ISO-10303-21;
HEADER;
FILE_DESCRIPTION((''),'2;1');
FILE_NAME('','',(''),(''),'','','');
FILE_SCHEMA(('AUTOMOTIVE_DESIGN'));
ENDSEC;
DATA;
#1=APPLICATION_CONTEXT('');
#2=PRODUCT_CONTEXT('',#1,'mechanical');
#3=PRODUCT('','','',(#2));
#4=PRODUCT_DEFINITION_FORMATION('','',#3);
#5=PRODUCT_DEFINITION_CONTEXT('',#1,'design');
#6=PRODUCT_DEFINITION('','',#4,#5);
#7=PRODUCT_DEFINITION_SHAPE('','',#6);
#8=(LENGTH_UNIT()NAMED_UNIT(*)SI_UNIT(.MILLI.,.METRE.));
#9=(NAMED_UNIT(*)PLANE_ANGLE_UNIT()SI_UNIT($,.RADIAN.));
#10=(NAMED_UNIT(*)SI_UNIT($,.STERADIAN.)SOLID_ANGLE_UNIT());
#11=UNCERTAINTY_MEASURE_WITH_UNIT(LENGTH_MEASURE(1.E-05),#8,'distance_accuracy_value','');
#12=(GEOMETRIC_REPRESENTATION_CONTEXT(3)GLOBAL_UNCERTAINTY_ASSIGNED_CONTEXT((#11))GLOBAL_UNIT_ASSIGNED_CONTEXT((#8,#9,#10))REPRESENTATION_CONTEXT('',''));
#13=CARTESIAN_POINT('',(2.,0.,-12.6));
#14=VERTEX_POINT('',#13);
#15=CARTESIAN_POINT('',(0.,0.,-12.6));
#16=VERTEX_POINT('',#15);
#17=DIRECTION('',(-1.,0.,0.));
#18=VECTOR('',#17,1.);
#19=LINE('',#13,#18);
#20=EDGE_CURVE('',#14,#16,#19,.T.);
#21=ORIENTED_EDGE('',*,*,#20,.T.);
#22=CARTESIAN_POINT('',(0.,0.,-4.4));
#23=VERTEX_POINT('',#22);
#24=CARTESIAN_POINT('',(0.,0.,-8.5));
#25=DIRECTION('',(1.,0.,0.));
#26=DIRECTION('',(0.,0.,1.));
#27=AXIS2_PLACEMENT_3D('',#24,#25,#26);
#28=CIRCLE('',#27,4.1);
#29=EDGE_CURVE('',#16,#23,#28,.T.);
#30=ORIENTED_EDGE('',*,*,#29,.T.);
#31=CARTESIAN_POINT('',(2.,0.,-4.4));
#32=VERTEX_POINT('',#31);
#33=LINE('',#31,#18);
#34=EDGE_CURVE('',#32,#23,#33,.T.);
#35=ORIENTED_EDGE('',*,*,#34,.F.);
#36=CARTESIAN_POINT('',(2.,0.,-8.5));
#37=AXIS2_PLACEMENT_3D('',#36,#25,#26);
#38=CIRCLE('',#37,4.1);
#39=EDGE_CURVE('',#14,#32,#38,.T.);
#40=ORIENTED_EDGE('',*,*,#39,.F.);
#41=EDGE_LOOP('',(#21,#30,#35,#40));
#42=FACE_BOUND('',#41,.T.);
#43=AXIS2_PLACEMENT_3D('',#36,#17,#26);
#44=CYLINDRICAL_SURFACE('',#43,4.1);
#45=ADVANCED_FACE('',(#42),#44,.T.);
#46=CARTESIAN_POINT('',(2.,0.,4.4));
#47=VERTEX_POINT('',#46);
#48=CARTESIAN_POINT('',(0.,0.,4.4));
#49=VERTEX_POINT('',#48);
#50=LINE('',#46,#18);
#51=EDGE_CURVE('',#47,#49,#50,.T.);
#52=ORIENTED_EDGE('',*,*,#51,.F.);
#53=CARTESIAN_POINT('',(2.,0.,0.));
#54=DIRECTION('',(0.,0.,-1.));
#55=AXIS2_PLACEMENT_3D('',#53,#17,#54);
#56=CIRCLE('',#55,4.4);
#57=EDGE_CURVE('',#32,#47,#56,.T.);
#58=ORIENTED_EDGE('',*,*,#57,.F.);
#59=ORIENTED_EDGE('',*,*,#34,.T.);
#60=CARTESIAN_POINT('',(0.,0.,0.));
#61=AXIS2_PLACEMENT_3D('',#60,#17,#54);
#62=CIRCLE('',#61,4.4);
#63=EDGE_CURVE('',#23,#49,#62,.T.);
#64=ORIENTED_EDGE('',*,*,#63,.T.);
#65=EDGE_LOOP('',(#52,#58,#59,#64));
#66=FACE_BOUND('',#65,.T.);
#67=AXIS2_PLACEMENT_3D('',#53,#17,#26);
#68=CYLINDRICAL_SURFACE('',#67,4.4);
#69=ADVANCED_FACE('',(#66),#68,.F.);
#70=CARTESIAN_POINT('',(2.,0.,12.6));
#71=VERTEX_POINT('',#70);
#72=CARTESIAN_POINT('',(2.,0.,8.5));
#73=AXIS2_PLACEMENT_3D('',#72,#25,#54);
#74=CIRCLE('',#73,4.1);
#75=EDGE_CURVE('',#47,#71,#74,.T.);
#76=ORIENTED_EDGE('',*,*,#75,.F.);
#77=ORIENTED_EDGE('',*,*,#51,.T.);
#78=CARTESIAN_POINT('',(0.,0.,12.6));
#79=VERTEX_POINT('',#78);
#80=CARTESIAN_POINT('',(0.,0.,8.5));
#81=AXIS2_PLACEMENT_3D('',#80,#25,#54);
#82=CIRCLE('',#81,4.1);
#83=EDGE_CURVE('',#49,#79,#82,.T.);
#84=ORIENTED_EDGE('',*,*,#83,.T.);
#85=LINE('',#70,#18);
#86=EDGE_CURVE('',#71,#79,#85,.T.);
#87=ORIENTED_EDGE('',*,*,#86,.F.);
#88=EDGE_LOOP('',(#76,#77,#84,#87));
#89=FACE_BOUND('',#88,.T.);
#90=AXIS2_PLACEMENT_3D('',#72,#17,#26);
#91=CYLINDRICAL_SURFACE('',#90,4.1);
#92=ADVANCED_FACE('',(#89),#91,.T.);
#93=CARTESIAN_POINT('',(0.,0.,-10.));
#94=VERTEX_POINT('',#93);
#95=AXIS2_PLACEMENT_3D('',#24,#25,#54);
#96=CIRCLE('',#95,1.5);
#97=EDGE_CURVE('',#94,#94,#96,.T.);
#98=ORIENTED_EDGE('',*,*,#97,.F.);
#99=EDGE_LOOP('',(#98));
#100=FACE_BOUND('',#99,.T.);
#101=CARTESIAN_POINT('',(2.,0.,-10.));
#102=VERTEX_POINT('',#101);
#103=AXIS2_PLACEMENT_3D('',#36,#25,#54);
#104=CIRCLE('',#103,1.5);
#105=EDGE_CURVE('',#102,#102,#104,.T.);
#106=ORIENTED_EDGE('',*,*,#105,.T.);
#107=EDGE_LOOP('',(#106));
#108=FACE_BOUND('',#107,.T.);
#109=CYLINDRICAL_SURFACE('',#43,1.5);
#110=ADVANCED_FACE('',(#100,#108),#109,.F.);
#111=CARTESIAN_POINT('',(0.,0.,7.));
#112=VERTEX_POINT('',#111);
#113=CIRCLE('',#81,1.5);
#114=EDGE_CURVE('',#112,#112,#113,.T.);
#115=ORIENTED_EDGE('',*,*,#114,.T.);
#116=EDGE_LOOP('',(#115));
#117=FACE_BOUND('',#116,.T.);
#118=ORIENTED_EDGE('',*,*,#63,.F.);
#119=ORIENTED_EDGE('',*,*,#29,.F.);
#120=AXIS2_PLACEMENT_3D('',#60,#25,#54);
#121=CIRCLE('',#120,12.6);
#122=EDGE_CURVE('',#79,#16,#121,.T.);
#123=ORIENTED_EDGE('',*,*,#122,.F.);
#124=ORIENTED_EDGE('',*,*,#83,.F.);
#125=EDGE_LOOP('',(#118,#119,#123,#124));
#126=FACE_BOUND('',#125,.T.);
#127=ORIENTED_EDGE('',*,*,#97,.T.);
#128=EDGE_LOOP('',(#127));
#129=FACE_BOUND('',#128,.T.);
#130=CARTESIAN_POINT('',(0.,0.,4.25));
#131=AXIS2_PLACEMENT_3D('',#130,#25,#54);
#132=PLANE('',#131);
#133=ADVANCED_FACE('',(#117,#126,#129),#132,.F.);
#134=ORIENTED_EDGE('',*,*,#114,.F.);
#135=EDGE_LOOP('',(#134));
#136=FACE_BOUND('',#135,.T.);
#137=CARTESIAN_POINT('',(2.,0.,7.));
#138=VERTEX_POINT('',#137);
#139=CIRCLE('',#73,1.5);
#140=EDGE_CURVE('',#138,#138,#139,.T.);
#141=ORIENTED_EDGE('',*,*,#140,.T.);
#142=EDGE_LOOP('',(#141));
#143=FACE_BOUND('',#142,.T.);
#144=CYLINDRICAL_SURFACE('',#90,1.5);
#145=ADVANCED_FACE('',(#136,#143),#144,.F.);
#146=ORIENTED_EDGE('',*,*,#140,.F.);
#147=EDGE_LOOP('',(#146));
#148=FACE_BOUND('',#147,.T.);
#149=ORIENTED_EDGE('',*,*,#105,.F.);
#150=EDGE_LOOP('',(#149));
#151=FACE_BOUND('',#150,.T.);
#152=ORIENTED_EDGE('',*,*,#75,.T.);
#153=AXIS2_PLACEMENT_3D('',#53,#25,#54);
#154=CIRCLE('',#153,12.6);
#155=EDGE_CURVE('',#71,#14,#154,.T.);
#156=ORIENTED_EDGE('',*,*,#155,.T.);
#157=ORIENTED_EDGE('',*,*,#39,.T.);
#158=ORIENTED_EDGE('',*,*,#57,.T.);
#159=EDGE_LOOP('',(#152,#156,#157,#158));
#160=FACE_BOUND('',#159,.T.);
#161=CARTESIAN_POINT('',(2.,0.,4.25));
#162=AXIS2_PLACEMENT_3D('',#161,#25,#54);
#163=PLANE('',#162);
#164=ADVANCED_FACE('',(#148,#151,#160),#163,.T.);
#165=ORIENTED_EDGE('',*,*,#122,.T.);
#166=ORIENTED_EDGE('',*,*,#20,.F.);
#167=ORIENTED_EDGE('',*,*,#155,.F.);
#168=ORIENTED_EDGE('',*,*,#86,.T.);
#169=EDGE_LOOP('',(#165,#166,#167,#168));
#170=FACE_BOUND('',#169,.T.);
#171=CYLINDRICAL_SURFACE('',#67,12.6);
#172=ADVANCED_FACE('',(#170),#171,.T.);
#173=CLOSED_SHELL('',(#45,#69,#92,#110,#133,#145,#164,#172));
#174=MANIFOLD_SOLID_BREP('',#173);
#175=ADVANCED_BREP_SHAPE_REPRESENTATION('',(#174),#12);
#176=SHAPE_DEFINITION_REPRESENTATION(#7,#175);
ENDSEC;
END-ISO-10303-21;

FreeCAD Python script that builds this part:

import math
import FreeCAD as App
import Part
import Sketcher

V = App.Vector
Q = App.Units.Quantity

doc = App.newDocument("Part")
body = doc.addObject("PartDesign::Body", "Body")

# Sketch on YZ plane
sketch1 = doc.addObject("Sketcher::SketchObject", "Sketch")
body.addObject(sketch1)
sketch1.AttachmentSupport = (doc.YZ_Plane, [""])
sketch1.MapMode = "FlatFace"
sketch1.addGeometry([
    Part.ArcOfCircle(Part.Circle(V(0, 0, 0), V(0, 0, 1), 4.4), math.radians(90), math.radians(270)),  # 0
    Part.ArcOfCircle(Part.Circle(V(0, 8.5, 0), V(0, 0, 1), 4.1), math.radians(-90), math.radians(90)),  # 1
    Part.ArcOfCircle(Part.Circle(V(0, 0, 0), V(0, 0, 1), 12.6), math.radians(90), math.radians(270)),  # 2
    Part.ArcOfCircle(Part.Circle(V(0, -8.5, 0), V(0, 0, 1), 4.1), math.radians(-90), math.radians(90)),  # 3
    Part.Circle(V(0, -8.5, 0), V(0, 0, 1), 1.5),  # 4
    Part.Circle(V(0, 8.5, 0), V(0, 0, 1), 1.5),  # 5
], False)
sketch1.addConstraint([
    Sketcher.Constraint("Tangent", 0, 1, 1, 1),
    Sketcher.Constraint("Tangent", 1, 2, 2, 1),
    Sketcher.Constraint("Tangent", 2, 2, 3, 1),
    Sketcher.Constraint("Tangent", 3, 2, 0, 2),
    Sketcher.Constraint("Coincident", 0, 3, -1, 1),
    Sketcher.Constraint("Coincident", 2, 3, -1, 1),
    Sketcher.Constraint("Coincident", 4, 3, 3, 3),
    Sketcher.Constraint("Coincident", 5, 3, 1, 3),
    Sketcher.Constraint("Equal", 4, 5),
    Sketcher.Constraint("PointOnObject", 1, 3, -2),
    Sketcher.Constraint("PointOnObject", 3, 3, -2),
    Sketcher.Constraint("Diameter", 4, Q("3 mm")),
    Sketcher.Constraint("Radius", 0, Q("4.4 mm")),
    Sketcher.Constraint("Radius", 1, Q("4.1 mm")),
])
pad1 = doc.addObject("PartDesign::Pad", "Pad")
body.addObject(pad1)
pad1.Profile = sketch1
pad1.Length = 2

doc.recompute()
